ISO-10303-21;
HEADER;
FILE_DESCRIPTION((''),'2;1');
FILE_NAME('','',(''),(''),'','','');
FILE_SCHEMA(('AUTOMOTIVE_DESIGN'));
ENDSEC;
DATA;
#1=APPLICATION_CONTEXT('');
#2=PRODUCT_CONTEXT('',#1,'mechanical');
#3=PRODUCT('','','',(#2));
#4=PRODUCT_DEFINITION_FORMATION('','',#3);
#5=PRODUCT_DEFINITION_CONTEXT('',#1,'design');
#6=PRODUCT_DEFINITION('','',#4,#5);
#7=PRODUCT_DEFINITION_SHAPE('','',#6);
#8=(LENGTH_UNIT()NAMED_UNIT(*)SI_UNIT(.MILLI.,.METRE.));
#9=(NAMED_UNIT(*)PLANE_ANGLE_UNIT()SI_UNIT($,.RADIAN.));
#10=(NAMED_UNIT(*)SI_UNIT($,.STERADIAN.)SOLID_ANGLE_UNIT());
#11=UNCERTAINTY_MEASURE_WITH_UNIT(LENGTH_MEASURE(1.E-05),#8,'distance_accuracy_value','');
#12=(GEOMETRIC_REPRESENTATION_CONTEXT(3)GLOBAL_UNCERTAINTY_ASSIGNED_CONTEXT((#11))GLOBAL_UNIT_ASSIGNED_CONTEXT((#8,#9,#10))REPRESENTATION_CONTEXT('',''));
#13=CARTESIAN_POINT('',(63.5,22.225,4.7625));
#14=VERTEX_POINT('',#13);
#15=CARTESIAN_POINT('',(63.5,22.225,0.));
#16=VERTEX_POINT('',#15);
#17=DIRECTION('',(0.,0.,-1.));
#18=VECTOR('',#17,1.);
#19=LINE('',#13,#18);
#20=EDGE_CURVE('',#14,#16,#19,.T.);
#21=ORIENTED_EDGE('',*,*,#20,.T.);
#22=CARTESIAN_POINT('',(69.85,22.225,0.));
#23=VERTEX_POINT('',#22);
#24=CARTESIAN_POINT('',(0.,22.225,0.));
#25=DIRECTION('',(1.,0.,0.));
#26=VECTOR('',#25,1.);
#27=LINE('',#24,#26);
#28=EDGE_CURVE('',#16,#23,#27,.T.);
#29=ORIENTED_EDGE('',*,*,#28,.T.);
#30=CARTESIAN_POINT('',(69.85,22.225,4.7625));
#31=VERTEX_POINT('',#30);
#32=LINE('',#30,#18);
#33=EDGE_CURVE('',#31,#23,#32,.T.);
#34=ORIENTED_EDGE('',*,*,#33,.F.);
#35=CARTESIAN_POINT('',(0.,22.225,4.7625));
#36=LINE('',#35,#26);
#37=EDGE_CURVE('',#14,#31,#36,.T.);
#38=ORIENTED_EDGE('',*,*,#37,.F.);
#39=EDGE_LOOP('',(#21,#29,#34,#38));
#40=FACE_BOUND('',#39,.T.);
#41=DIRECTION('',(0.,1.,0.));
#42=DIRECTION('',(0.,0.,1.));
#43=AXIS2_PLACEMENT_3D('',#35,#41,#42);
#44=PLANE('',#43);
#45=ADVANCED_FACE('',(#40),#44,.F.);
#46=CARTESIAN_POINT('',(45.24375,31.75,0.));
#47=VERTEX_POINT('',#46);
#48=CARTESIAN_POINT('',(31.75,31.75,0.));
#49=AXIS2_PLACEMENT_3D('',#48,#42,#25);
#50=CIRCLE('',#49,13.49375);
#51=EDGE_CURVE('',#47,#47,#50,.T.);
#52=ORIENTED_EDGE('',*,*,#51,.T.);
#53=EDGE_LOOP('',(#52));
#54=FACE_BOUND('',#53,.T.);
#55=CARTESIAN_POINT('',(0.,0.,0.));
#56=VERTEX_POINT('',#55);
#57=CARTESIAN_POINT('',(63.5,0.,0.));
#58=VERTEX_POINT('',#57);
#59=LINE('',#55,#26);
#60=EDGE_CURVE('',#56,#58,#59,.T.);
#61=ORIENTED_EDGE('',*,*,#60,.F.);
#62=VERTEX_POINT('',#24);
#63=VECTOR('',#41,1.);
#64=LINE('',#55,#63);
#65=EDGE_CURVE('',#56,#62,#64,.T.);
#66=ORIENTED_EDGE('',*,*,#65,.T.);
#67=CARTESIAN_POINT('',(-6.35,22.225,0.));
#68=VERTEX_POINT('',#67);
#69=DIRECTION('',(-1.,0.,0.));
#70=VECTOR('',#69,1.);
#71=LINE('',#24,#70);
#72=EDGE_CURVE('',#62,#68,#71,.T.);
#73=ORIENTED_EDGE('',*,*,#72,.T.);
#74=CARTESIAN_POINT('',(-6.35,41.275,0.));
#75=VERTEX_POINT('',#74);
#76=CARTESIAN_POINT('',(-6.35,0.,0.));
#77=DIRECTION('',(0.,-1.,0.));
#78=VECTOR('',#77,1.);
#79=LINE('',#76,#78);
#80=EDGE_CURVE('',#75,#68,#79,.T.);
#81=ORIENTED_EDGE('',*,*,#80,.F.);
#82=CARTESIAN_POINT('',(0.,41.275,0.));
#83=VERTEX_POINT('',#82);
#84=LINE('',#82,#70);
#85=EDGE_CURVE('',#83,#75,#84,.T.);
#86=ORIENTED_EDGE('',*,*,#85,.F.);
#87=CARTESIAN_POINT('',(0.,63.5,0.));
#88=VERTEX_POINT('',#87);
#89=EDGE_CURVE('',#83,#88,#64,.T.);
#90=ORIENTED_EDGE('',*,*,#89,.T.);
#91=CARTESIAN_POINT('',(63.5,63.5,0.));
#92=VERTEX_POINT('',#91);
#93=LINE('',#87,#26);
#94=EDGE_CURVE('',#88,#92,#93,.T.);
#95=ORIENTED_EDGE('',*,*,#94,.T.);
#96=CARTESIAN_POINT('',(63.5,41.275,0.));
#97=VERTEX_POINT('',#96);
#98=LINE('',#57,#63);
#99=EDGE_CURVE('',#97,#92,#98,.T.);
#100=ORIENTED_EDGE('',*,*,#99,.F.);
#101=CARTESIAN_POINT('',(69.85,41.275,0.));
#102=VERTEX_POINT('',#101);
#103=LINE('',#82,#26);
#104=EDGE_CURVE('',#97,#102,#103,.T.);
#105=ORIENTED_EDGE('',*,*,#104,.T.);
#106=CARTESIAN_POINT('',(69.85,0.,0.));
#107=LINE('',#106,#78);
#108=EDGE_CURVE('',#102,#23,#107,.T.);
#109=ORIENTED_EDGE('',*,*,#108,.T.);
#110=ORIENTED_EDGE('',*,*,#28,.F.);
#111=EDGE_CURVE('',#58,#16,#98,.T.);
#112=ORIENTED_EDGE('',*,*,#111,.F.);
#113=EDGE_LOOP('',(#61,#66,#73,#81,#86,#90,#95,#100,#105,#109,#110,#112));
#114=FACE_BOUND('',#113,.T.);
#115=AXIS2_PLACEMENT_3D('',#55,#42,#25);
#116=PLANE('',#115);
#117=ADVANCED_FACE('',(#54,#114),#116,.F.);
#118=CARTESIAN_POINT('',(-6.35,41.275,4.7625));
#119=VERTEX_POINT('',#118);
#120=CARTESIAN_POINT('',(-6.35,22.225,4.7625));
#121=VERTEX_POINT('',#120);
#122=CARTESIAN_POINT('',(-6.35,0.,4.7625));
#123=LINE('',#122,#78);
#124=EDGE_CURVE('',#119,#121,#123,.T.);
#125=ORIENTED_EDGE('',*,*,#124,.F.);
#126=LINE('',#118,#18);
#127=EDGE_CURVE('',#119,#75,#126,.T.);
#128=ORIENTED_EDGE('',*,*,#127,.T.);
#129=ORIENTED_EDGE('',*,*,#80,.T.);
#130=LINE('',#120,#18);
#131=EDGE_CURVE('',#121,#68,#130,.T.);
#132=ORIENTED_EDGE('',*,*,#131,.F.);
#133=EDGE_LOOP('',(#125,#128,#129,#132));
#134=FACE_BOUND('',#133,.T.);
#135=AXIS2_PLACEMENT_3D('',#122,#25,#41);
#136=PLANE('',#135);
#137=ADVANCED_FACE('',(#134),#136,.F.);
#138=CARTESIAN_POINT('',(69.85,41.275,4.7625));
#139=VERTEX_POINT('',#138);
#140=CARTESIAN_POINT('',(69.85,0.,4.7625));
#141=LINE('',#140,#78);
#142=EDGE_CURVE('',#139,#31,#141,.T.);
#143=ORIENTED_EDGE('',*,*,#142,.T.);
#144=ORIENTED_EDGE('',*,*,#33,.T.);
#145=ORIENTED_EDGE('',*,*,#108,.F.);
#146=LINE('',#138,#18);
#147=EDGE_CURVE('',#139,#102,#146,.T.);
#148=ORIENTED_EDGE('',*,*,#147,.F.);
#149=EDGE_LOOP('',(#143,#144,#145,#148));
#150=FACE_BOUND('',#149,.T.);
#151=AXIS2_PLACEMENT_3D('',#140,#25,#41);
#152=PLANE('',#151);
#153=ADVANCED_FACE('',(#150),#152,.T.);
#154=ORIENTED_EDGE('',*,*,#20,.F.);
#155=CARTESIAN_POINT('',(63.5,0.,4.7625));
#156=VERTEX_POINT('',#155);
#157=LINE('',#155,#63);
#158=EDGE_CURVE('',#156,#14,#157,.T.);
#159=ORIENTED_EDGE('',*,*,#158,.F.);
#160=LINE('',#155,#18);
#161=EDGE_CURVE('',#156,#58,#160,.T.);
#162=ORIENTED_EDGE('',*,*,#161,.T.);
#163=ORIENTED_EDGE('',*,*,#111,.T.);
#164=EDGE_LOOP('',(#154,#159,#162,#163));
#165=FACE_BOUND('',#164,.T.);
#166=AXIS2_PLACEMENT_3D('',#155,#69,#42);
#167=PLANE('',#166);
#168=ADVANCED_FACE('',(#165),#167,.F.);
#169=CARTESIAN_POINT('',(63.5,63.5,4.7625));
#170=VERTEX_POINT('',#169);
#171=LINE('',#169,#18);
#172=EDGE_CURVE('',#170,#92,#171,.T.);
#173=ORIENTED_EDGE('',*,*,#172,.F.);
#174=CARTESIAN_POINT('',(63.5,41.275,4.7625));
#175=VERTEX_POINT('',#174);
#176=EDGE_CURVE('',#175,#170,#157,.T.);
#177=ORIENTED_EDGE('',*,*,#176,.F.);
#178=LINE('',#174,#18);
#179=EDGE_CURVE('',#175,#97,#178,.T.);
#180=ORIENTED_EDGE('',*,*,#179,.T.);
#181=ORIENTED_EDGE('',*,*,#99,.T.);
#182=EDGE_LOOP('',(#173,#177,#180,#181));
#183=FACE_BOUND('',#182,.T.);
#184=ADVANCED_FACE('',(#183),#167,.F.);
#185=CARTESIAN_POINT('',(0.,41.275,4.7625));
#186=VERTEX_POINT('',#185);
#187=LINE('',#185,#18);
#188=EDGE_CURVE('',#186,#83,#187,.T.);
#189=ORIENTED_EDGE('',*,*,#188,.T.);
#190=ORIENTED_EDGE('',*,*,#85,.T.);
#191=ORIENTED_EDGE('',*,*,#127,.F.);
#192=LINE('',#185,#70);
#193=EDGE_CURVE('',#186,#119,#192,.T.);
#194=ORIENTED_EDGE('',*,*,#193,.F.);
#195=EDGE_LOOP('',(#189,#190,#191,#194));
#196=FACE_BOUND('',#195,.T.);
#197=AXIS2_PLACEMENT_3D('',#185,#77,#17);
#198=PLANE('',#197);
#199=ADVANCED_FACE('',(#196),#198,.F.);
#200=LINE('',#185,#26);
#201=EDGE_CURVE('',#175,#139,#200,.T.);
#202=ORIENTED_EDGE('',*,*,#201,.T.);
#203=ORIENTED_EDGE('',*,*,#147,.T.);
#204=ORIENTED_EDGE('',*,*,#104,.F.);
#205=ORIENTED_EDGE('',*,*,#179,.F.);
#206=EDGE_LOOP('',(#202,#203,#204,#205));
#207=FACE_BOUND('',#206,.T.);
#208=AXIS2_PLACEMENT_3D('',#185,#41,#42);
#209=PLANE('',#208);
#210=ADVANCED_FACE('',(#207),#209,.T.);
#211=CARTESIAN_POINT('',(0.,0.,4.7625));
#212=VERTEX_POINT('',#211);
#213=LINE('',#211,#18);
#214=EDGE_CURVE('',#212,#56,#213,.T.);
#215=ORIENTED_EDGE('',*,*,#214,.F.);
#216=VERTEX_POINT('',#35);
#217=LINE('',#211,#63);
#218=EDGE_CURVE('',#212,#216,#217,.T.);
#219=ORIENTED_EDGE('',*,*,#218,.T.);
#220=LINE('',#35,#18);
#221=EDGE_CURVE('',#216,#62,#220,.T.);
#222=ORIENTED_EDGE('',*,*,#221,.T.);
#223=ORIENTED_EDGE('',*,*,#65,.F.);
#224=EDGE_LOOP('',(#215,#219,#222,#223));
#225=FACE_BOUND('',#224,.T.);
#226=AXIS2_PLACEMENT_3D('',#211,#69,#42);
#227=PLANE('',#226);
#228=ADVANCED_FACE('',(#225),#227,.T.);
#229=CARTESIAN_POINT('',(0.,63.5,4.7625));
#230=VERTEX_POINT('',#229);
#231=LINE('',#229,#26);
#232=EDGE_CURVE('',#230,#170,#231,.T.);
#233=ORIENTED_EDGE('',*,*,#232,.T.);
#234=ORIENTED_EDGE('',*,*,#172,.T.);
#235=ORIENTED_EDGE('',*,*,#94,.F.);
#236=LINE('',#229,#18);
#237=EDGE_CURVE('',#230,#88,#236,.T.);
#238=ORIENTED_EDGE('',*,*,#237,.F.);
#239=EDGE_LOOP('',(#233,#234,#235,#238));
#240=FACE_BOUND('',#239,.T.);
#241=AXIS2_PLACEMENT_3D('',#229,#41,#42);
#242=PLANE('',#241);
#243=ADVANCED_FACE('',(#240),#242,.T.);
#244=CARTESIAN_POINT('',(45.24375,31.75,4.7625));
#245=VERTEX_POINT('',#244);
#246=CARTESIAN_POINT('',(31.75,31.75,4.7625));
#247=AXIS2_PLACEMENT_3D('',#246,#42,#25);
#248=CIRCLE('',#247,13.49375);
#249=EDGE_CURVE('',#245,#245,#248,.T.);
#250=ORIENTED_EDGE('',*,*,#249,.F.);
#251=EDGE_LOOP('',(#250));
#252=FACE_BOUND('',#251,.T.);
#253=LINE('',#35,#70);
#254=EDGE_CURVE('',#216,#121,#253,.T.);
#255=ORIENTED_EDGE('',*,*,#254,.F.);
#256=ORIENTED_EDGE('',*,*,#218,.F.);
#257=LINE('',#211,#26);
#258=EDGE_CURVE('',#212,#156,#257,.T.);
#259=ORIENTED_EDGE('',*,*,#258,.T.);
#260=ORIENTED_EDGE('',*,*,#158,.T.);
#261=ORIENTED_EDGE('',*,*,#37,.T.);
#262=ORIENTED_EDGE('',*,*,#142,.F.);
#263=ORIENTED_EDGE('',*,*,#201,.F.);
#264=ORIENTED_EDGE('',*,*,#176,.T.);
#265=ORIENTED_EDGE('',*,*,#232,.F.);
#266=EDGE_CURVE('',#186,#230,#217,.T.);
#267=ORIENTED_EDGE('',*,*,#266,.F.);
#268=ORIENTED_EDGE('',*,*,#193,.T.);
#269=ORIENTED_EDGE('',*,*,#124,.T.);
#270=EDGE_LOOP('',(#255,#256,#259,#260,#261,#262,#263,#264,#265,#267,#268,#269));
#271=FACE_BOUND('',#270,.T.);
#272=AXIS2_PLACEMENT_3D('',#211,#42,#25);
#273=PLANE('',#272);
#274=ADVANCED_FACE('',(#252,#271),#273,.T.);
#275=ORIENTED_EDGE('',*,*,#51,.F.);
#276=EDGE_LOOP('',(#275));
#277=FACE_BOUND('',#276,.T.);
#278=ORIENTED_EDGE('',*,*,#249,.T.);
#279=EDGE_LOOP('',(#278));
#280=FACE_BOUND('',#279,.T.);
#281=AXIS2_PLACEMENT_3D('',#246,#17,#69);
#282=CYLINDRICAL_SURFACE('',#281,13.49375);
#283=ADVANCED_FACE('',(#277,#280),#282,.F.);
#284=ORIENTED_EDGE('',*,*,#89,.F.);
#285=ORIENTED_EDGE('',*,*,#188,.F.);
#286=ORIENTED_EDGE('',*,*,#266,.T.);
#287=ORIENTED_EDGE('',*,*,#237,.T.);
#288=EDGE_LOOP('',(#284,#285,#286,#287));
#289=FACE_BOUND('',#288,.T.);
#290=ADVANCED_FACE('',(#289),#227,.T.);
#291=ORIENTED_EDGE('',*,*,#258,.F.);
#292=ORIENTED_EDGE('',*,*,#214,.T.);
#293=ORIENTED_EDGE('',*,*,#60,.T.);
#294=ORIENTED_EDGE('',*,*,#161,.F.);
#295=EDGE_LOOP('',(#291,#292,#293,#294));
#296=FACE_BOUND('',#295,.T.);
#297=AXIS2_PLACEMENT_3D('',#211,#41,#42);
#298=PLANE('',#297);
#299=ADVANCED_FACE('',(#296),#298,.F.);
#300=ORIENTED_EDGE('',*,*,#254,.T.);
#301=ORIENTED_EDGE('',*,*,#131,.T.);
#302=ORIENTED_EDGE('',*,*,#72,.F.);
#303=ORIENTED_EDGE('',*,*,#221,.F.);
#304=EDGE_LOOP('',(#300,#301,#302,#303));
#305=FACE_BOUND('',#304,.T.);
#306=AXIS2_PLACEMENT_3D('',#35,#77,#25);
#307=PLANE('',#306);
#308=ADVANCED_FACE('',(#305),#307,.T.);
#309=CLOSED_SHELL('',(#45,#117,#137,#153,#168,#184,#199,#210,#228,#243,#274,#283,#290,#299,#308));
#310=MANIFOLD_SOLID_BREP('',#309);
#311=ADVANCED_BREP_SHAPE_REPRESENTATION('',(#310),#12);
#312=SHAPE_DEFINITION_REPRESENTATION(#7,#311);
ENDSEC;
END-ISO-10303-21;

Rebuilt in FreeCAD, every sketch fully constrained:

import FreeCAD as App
import Part
import Sketcher
Q = App.Units.Quantity

doc = App.newDocument("Part")
body = doc.addObject("PartDesign::Body", "Body")

# Sketch on XY plane
sketch1 = body.newObject("Sketcher::SketchObject", "Sketch")
sketch1.AttachmentSupport = (doc.getObject("XY_Plane"), [""])
sketch1.MapMode = "FlatFace"
sketch1.addGeometry([
    Part.LineSegment(App.Vector(0, 22.225, 0), App.Vector(0, 0, 0)),  # 0
    Part.LineSegment(App.Vector(0, 0, 0), App.Vector(63.5, 0, 0)),  # 1
    Part.LineSegment(App.Vector(63.5, 0, 0), App.Vector(63.5, 22.225, 0)),  # 2
    Part.LineSegment(App.Vector(63.5, 22.225, 0), App.Vector(69.85, 22.225, 0)),  # 3
    Part.LineSegment(App.Vector(69.85, 22.225, 0), App.Vector(69.85, 41.275, 0)),  # 4
    Part.LineSegment(App.Vector(69.85, 41.275, 0), App.Vector(63.5, 41.275, 0)),  # 5
    Part.LineSegment(App.Vector(63.5, 41.275, 0), App.Vector(63.5, 63.5, 0)),  # 6
    Part.LineSegment(App.Vector(63.5, 63.5, 0), App.Vector(0, 63.5, 0)),  # 7
    Part.LineSegment(App.Vector(0, 63.5, 0), App.Vector(0, 41.275, 0)),  # 8
    Part.LineSegment(App.Vector(0, 41.275, 0), App.Vector(-6.35, 41.275, 0)),  # 9
    Part.LineSegment(App.Vector(-6.35, 41.275, 0), App.Vector(-6.35, 22.225, 0)),  # 10
    Part.LineSegment(App.Vector(-6.35, 22.225, 0), App.Vector(0, 22.225, 0)),  # 11
    Part.Circle(App.Vector(31.75, 31.75, 0), App.Vector(0, 0, 1), 13.49375),  # 12
], False)
sketch1.addConstraint([
    Sketcher.Constraint("Coincident", 0, 2, 1, 1),
    Sketcher.Constraint("Coincident", 1, 2, 2, 1),
    Sketcher.Constraint("Coincident", 2, 2, 3, 1),
    Sketcher.Constraint("Coincident", 3, 2, 4, 1),
    Sketcher.Constraint("Coincident", 4, 2, 5, 1),
    Sketcher.Constraint("Coincident", 5, 2, 6, 1),
    Sketcher.Constraint("Coincident", 6, 2, 7, 1),
    Sketcher.Constraint("Coincident", 7, 2, 8, 1),
    Sketcher.Constraint("Coincident", 8, 2, 9, 1),
    Sketcher.Constraint("Coincident", 9, 2, 10, 1),
    Sketcher.Constraint("Coincident", 10, 2, 11, 1),
    Sketcher.Constraint("Coincident", 11, 2, 0, 1),
    Sketcher.Constraint("Vertical", 0),
    Sketcher.Constraint("Horizontal", 1),
    Sketcher.Constraint("Vertical", 2),
    Sketcher.Constraint("Horizontal", 3),
    Sketcher.Constraint("Vertical", 4),
    Sketcher.Constraint("Horizontal", 5),
    Sketcher.Constraint("Vertical", 6),
    Sketcher.Constraint("Horizontal", 7),
    Sketcher.Constraint("Vertical", 8),
    Sketcher.Constraint("Horizontal", 9),
    Sketcher.Constraint("Vertical", 10),
    Sketcher.Constraint("Horizontal", 11),
    Sketcher.Constraint("Coincident", 0, 2, -1, 1),
    Sketcher.Constraint("PointOnObject", 7, 2, -2),
    Sketcher.Constraint("Horizontal", 5, 2, 8, 2),
    Sketcher.Constraint("Horizontal", 3, 2, 10, 2),
    Sketcher.Constraint("Vertical", 2, 2, 5, 2),
    Sketcher.Constraint("Equal", 5, 9),
    Sketcher.Constraint("Equal", 2, 6),
    Sketcher.Constraint("Diameter", 12, Q("1.0625 in")),
    Sketcher.Constraint("DistanceX", 1, 1, 1, 2, Q("2.5 in")),
    Sketcher.Constraint("DistanceX", 3, 1, 3, 2, Q("0.25 in")),
    Sketcher.Constraint("DistanceY", 4, 1, 4, 2, Q("0.75 in")),
    Sketcher.Constraint("DistanceY", -1, 1, 6, 2, Q("2.5 in")),
    Sketcher.Constraint("DistanceX", 12, 3, 3, 2, Q("1.5 in")),
    Sketcher.Constraint("DistanceY", -1, 1, 12, 3, Q("1.25 in")),
])
pad1 = body.newObject("PartDesign::Pad", "Pad")
pad1.Profile = sketch1
pad1.Length = Q("0.1875 in")

doc.recompute()
